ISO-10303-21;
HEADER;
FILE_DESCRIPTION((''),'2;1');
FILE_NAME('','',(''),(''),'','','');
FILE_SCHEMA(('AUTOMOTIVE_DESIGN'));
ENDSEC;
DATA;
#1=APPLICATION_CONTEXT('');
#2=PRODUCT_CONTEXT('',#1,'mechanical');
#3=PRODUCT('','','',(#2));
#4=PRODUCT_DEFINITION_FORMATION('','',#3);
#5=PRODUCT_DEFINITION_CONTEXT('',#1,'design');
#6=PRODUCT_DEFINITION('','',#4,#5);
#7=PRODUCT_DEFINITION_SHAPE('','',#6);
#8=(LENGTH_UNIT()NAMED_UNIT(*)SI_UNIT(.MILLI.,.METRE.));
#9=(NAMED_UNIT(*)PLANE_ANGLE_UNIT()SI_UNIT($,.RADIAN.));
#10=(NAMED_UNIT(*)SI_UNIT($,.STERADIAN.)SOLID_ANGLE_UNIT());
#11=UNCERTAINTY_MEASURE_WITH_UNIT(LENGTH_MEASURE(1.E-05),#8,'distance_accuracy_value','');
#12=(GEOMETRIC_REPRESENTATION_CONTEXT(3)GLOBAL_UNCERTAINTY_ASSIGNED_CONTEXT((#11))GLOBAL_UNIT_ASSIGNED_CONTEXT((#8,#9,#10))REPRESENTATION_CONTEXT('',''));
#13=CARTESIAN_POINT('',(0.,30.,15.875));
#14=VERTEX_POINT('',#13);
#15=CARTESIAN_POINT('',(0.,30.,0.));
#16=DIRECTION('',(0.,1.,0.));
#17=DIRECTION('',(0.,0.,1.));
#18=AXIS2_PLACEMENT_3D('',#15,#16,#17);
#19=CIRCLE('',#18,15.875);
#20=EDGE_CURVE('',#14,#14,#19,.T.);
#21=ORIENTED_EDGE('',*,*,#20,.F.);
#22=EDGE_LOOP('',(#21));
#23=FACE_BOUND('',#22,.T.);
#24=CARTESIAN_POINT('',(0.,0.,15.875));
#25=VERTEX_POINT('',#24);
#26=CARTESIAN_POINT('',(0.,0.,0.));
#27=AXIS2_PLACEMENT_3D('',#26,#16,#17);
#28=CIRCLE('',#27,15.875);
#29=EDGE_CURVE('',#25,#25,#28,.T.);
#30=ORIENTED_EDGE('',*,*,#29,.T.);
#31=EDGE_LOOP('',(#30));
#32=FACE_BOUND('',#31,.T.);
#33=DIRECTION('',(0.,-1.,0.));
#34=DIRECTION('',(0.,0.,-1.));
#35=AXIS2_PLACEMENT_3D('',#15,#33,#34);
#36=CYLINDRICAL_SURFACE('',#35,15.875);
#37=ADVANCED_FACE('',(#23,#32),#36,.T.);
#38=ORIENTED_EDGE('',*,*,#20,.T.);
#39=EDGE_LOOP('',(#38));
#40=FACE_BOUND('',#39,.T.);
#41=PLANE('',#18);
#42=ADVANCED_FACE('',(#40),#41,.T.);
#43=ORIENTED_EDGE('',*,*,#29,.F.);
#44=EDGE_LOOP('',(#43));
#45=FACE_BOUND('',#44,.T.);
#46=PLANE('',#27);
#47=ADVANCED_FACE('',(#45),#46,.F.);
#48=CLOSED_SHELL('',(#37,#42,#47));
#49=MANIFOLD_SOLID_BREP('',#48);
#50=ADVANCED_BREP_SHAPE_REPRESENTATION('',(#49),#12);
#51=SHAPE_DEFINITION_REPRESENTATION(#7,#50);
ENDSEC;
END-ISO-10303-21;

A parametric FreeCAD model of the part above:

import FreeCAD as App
import Part
import Sketcher

doc = App.newDocument("Part")
body = doc.addObject("PartDesign::Body", "Body")

sketch1 = body.newObject("Sketcher::SketchObject", "Sketch")
sketch1.AttachmentSupport = (doc.getObject("XZ_Plane"), [""])
sketch1.MapMode = "FlatFace"
sketch1.addGeometry(Part.Circle(App.Vector(0, 0, 0), App.Vector(0, 0, 1), 15.875), False)
sketch1.addConstraint([
    Sketcher.Constraint("Coincident", 0, 3, -1, 1),
    Sketcher.Constraint("Diameter", 0, 31.75),
])
pad1 = body.newObject("PartDesign::Pad", "Pad")
pad1.Profile = sketch1
pad1.Length = 30
pad1.Reversed = True

doc.recompute()
